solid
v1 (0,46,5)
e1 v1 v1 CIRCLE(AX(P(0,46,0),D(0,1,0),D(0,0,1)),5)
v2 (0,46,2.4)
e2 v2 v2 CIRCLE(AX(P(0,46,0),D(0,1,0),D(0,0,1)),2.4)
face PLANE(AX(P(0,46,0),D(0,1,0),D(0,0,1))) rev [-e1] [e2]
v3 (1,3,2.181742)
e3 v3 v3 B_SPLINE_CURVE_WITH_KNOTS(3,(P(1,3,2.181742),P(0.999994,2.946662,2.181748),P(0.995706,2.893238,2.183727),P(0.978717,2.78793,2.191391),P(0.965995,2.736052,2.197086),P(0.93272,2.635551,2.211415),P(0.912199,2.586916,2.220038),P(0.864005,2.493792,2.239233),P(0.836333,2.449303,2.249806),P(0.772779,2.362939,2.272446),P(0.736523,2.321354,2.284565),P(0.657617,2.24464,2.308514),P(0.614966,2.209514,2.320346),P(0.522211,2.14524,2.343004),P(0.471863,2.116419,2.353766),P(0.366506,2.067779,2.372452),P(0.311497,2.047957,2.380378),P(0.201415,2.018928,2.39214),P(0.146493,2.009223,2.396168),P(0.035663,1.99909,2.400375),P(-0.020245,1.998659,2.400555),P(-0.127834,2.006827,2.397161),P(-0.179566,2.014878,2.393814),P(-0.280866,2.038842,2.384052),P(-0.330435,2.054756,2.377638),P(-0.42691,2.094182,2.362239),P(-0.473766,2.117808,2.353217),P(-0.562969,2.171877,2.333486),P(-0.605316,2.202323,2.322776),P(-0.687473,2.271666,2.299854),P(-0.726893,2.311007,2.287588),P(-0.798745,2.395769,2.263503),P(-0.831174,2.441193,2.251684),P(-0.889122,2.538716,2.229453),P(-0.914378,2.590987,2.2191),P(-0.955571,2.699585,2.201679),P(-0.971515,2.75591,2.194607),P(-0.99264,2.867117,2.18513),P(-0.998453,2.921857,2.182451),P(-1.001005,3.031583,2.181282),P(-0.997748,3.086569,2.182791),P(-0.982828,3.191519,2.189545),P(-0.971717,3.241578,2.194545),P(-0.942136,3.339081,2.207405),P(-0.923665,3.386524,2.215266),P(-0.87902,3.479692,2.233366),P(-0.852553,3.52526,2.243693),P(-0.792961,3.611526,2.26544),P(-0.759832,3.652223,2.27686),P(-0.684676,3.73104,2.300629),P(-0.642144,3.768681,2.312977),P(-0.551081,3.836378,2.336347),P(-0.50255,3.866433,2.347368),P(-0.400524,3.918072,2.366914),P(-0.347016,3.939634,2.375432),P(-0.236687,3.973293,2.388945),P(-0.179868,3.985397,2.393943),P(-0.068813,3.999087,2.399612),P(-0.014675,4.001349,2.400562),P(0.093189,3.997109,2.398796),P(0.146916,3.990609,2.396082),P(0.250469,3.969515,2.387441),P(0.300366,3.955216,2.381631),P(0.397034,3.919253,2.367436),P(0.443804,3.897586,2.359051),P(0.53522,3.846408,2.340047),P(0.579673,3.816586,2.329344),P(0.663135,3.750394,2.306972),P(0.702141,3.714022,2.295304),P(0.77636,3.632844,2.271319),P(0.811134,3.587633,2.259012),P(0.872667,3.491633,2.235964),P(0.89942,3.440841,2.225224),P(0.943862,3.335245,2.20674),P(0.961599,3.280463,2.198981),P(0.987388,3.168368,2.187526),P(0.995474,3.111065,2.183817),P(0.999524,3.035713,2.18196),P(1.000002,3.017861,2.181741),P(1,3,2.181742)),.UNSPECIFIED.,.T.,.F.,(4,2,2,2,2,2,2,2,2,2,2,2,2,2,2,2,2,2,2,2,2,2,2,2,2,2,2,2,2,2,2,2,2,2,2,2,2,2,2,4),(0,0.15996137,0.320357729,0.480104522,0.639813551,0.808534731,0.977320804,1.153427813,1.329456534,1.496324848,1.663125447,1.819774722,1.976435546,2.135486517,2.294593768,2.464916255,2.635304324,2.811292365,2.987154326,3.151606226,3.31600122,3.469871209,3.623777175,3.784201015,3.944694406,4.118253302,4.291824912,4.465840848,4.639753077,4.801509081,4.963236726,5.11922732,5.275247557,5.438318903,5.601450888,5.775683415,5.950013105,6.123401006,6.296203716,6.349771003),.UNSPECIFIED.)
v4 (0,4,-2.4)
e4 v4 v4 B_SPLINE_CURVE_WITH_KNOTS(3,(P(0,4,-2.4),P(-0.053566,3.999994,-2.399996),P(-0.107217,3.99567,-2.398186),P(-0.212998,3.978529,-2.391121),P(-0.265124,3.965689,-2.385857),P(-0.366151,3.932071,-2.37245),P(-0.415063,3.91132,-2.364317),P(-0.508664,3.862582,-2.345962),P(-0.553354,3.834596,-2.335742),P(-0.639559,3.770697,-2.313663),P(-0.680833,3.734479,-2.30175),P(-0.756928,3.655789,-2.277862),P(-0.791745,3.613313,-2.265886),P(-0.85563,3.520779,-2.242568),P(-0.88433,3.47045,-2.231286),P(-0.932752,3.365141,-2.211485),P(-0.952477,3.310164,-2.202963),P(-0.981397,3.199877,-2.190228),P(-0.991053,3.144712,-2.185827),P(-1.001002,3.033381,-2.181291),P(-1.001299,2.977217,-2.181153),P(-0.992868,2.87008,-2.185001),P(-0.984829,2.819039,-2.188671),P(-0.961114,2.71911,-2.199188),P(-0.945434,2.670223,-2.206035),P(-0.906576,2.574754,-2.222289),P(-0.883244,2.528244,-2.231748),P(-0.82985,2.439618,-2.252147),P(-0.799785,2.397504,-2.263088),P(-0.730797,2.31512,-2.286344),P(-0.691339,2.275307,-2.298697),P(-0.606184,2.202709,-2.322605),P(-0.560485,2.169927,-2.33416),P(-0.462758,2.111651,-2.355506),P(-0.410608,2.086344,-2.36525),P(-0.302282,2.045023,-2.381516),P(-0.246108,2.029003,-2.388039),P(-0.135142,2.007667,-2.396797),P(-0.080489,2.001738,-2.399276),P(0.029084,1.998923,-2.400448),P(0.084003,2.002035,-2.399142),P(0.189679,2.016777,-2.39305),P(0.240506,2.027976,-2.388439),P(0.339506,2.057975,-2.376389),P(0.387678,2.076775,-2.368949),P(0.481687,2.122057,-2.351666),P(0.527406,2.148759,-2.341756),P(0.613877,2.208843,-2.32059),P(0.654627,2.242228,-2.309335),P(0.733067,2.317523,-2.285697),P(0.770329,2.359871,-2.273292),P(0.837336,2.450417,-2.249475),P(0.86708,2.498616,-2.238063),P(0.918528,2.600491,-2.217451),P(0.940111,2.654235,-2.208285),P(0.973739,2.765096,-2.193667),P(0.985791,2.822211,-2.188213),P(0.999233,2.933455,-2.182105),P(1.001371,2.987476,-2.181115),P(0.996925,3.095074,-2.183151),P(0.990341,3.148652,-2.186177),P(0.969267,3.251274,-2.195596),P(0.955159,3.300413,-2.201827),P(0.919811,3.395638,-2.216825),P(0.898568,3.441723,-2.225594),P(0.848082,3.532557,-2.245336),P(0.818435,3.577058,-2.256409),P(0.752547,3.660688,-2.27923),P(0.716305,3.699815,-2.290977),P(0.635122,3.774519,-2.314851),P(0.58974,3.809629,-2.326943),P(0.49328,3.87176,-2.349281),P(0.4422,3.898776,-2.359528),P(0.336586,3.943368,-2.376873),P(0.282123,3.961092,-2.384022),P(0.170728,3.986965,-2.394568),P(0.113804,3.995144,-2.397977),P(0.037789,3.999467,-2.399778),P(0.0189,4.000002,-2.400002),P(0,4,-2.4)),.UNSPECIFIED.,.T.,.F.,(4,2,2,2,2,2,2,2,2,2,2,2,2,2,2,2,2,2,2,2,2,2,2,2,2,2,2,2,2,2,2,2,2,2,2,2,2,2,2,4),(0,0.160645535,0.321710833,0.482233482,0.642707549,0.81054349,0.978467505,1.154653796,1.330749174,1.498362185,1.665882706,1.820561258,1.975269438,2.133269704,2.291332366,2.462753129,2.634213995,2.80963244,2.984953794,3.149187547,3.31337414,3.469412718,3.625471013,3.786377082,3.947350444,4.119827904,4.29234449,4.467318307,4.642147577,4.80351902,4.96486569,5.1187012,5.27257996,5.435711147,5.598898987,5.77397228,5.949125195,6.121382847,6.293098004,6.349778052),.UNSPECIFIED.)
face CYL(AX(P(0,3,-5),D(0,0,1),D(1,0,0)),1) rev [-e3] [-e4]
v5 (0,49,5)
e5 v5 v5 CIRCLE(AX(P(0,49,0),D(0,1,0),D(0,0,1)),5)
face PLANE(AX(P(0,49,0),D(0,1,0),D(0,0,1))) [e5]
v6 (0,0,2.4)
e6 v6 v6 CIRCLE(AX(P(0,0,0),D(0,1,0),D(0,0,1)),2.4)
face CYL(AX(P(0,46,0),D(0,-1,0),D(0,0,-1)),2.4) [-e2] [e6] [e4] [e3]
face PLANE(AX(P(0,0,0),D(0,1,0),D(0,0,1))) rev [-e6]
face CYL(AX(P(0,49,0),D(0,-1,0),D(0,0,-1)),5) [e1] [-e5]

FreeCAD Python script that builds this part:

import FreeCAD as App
import Part
import Sketcher

V = App.Vector

doc = App.newDocument("Part")
params = doc.addObject("Spreadsheet::Sheet", "Params")
for row, (alias, value) in enumerate([
    ("sketch1_diameter", "4.8 mm"),
    ("pad1_length", "46 mm"),
    ("sketch2_diameter", "10 mm"),
    ("pad2_length", "3 mm"),
    ("sketch3_diameter", "2 mm"),
], start=1):
    params.set(f"A{row}", alias)
    params.set(f"B{row}", "=" + value)
    params.setAlias(f"B{row}", alias)

body = doc.addObject("PartDesign::Body", "Body")

# Sketch on XZ plane
sketch1 = body.newObject("Sketcher::SketchObject", "Sketch")
sketch1.AttachmentSupport = (doc.getObject("XZ_Plane"), [""])
sketch1.MapMode = "FlatFace"
sketch1.addGeometry(Part.Circle(V(0, 0, 0), V(0, 0, 1), 2.4), False)
sketch1.addConstraint([
    Sketcher.Constraint("Coincident", 0, 3, -1, 1),
    Sketcher.Constraint("Diameter", 0, 4.8),
])
sketch1.setExpression("Constraints[1]", "Params.sketch1_diameter")
pad1 = body.newObject("PartDesign::Pad", "Pad")
pad1.Profile = sketch1
pad1.setExpression("Length", "Params.pad1_length")
pad1.Reversed = True

# Sketch on XZ plane
sketch2 = body.newObject("Sketcher::SketchObject", "Sketch001")
sketch2.AttachmentSupport = (doc.getObject("XZ_Plane"), [""])
sketch2.MapMode = "FlatFace"
sketch2.AttachmentOffset = App.Placement(V(0, 0, -46), App.Rotation())
sketch2.addGeometry(Part.Circle(V(0, 0, 0), V(0, 0, 1), 5), False)
sketch2.addConstraint([
    Sketcher.Constraint("Coincident", 0, 3, -1, 1),
    Sketcher.Constraint("Diameter", 0, 10.0),
])
sketch2.setExpression("Constraints[1]", "Params.sketch2_diameter")
pad2 = body.newObject("PartDesign::Pad", "Pad001")
pad2.Profile = sketch2
pad2.setExpression("Length", "Params.pad2_length")
pad2.Reversed = True

# Sketch on XY plane
sketch3 = body.newObject("Sketcher::SketchObject", "Sketch002")
sketch3.AttachmentSupport = (doc.getObject("XY_Plane"), [""])
sketch3.MapMode = "FlatFace"
sketch3.addGeometry(Part.Circle(V(0, 3, 0), V(0, 0, 1), 1), False)
sketch3.addConstraint([
    Sketcher.Constraint("PointOnObject", 0, 3, -2),
    Sketcher.Constraint("Diameter", 0, 2.0),
    Sketcher.Constraint("DistanceY", -1, 1, 0, 3, 3.0),
])
sketch3.setExpression("Constraints[1]", "Params.sketch3_diameter")
pocket1 = body.newObject("PartDesign::Pocket", "Pocket")
pocket1.Profile = sketch3
pocket1.Type = "ThroughAll"
pocket1.Midplane = True

doc.recompute()
